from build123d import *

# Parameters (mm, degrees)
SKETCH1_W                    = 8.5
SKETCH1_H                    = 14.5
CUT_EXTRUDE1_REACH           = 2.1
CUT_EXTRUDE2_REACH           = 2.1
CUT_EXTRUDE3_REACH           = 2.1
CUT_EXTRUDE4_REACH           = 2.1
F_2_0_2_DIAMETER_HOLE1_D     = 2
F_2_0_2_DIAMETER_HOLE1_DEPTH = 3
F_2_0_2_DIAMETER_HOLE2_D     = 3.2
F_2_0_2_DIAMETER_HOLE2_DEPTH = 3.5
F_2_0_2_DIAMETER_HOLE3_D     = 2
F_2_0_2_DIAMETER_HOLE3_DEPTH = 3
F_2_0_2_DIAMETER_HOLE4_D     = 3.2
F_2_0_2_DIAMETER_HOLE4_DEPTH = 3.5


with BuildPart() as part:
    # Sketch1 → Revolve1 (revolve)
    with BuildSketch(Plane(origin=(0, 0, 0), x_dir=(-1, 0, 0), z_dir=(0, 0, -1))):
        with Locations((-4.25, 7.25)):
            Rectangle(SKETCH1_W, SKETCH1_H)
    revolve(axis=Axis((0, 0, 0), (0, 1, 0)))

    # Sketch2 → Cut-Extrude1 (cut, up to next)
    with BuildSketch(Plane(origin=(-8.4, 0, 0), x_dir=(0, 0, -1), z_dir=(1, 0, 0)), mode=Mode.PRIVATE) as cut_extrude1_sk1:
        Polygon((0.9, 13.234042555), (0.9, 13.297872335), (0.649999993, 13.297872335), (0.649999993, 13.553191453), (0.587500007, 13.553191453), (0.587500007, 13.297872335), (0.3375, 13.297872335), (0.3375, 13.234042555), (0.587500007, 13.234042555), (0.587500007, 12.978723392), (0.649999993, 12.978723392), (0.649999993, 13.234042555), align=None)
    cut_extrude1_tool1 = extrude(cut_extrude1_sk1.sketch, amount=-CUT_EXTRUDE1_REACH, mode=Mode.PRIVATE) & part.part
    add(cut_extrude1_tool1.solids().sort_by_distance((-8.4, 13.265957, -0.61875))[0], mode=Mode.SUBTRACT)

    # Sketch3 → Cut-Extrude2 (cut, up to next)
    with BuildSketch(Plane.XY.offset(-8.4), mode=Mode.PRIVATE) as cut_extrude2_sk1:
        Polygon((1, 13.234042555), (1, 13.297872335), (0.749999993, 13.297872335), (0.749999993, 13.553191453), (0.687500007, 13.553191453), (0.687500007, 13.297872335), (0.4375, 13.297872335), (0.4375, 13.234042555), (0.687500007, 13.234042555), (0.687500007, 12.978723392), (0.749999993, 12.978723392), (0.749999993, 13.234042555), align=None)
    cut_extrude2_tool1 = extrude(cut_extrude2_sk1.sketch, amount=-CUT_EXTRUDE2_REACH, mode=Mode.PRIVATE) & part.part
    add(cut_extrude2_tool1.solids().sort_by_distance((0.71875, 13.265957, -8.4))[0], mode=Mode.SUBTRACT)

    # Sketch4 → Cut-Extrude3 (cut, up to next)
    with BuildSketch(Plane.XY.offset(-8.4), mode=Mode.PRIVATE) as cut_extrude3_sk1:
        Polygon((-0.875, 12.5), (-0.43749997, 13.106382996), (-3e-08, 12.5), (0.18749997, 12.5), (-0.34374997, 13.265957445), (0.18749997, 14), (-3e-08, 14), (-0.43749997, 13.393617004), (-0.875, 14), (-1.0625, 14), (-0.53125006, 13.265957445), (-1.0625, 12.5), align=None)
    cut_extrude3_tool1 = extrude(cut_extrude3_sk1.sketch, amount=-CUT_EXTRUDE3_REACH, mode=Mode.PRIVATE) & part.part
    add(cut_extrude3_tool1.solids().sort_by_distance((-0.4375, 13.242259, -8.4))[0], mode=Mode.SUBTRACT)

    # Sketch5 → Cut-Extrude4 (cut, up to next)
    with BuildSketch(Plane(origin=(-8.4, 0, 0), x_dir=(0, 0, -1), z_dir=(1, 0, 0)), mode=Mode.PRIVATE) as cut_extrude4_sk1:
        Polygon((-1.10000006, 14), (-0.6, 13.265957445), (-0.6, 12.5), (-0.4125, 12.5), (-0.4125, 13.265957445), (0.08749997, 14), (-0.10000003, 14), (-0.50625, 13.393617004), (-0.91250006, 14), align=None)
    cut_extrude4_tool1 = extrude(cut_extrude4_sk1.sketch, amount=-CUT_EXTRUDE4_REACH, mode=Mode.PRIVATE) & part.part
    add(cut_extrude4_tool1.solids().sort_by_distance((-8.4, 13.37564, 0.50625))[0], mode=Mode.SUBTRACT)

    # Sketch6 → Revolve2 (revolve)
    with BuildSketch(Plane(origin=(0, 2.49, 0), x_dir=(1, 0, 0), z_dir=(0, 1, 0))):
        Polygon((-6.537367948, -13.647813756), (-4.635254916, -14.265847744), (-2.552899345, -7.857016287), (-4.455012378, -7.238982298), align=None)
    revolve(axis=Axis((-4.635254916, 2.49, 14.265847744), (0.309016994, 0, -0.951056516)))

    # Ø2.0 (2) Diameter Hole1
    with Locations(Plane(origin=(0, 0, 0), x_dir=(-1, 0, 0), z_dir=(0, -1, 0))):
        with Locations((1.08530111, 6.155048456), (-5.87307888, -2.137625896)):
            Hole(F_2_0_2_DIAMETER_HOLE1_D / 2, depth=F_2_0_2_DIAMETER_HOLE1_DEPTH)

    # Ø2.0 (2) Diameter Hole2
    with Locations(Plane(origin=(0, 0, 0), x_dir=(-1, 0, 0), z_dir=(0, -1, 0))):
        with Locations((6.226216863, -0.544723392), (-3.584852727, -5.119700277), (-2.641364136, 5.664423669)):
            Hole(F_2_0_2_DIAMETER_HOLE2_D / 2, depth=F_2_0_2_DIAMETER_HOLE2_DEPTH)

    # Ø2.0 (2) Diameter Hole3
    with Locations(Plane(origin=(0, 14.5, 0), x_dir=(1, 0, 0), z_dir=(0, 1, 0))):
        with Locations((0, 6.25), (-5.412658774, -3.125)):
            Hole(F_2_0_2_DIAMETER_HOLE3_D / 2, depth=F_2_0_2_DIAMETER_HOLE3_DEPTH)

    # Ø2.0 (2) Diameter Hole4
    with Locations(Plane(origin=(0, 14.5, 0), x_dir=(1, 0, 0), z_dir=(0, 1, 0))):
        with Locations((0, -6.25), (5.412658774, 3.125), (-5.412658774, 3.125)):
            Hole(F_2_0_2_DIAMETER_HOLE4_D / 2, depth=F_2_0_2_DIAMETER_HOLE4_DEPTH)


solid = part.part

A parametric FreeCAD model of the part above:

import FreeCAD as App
import Part
import Sketcher
from FreeCAD import Vector
Q = App.Units.Quantity


def add_polygon(sketch, points):
    """Adds a closed chain of lines whose ends are joined by coincident constraints."""
    first, n = sketch.GeometryCount, len(points)
    for a, b in zip(points, points[1:] + points[:1]):
        sketch.addGeometry(Part.LineSegment(App.Vector(*a, 0), App.Vector(*b, 0)), False)
    for i in range(n):
        sketch.addConstraint(Sketcher.Constraint("Coincident", first + i, 2, first + (i + 1) % n, 1))

doc = App.newDocument("Part")
params = doc.addObject("Spreadsheet::Sheet", "Params")
for row, (alias, value) in enumerate([
    ("sketch1_width", "8.5 mm"),
    ("sketch1_height", "14.5 mm"),
    ("revolution_angle", "360 deg"),
    ("sketch2_height", "0.25 mm"),
    ("sketch3_width", "0.25 mm"),
    ("sketch6_length", "2 mm"),
    ("revolution2_angle", "360 deg"),
    ("sketch7_diameter", "2 mm"),
    ("hole_diameter", "2 mm"),
    ("hole_depth", "3 mm"),
    ("sketch8_diameter", "3.2 mm"),
    ("hole2_diameter", "3.2 mm"),
    ("hole2_depth", "3.5 mm"),
    ("sketch9_diameter", "2 mm"),
    ("hole3_diameter", "2 mm"),
    ("hole3_depth", "3 mm"),
    ("sketch10_diameter", "3.2 mm"),
    ("hole4_diameter", "3.2 mm"),
    ("hole4_depth", "3.5 mm"),
], start=1):
    params.set(f"A{row}", alias)
    params.set(f"B{row}", "=" + value)
    params.setAlias(f"B{row}", alias)

body = doc.addObject("PartDesign::Body", "Body")

sketch1 = body.newObject("Sketcher::SketchObject", "Sketch")
sketch1.AttachmentSupport = (doc.getObject("XY_Plane"), [""])
sketch1.MapMode = "FlatFace"
add_polygon(sketch1, [(8, 14), (8, 0), (0, 0), (0, 14)])
sketch1.addConstraint([
    Sketcher.Constraint("Vertical", 0),
    Sketcher.Constraint("Horizontal", 1),
    Sketcher.Constraint("Vertical", 2),
    Sketcher.Constraint("Horizontal", 3),
    Sketcher.Constraint("Coincident", 1, 2, -1, 1),
    Sketcher.Constraint("DistanceX", 1, 2, 1, 1, Q("8.5 mm")),
    Sketcher.Constraint("DistanceY", 0, 2, 0, 1, Q("14.5 mm")),
])
sketch1.setExpression("Constraints[9]", "Params.sketch1_width")
sketch1.setExpression("Constraints[10]", "Params.sketch1_height")
revolution = body.newObject("PartDesign::Revolution", "Revolution")
revolution.Profile = sketch1
revolution.ReferenceAxis = (sketch1, ["V_Axis"])
revolution.setExpression("Angle", "Params.revolution_angle")

sketch2 = body.newObject("Sketcher::SketchObject", "Sketch001")
sketch2.AttachmentSupport = (doc.getObject("YZ_Plane"), [""])
sketch2.MapMode = "FlatFace"
sketch2.AttachmentOffset = App.Placement(Vector(0, 0, -8.4), App.Rotation())
add_polygon(sketch2, [(13.23, -0.9), (13.3, -0.9), (13.3, -0.65), (13.55, -0.65), (13.55, -0.59), (13.3, -0.59), (13.3, -0.34), (13.23, -0.34), (13.23, -0.59), (12.98, -0.59), (12.98, -0.65), (13.23, -0.65)])
sketch2.addConstraint([
    Sketcher.Constraint("Horizontal", 0),
    Sketcher.Constraint("Vertical", 1),
    Sketcher.Constraint("Horizontal", 2),
    Sketcher.Constraint("Vertical", 3),
    Sketcher.Constraint("Horizontal", 4),
    Sketcher.Constraint("Vertical", 5),
    Sketcher.Constraint("Horizontal", 6),
    Sketcher.Constraint("Vertical", 7),
    Sketcher.Constraint("Horizontal", 8),
    Sketcher.Constraint("Vertical", 9),
    Sketcher.Constraint("Horizontal", 10),
    Sketcher.Constraint("Vertical", 11),
    Sketcher.Constraint("Horizontal", 4, 2, 7, 2),
    Sketcher.Constraint("Horizontal", 2, 2, 9, 2),
    Sketcher.Constraint("Vertical", 1, 2, 4, 2),
    Sketcher.Constraint("Vertical", 7, 2, 10, 2),
    Sketcher.Constraint("Equal", 4, 8),
    Sketcher.Constraint("Equal", 1, 5),
    Sketcher.Constraint("DistanceY", 1, 1, 1, 2, Q("0.25 mm")),
    Sketcher.Constraint("DistanceY", 0, 2, -1, 1, Q("0.9 mm")),
    Sketcher.Constraint("DistanceY", 3, 1, 3, 2, Q("0.0625 mm")),
    Sketcher.Constraint("DistanceX", 0, 1, 0, 2, Q("0.06383 mm")),
    Sketcher.Constraint("DistanceX", 2, 1, 2, 2, Q("0.255319 mm")),
    Sketcher.Constraint("DistanceX", -1, 1, 2, 2, Q("13.553191 mm")),
])
sketch2.setExpression("Constraints[30]", "Params.sketch2_height")
pocket1 = body.newObject("PartDesign::Pocket", "Pocket")
pocket1.Profile = sketch2
pocket1.Type = "UpToFirst"

sketch3 = body.newObject("Sketcher::SketchObject", "Sketch002")
sketch3.AttachmentSupport = (doc.getObject("XY_Plane"), [""])
sketch3.MapMode = "FlatFace"
sketch3.AttachmentOffset = App.Placement(Vector(0, 0, -8.4), App.Rotation())
add_polygon(sketch3, [(1, 13.23), (1, 13.3), (0.75, 13.3), (0.75, 13.55), (0.69, 13.55), (0.69, 13.3), (0.44, 13.3), (0.44, 13.23), (0.69, 13.23), (0.69, 12.98), (0.75, 12.98), (0.75, 13.23)])
sketch3.addConstraint([
    Sketcher.Constraint("Vertical", 0),
    Sketcher.Constraint("Horizontal", 1),
    Sketcher.Constraint("Vertical", 2),
    Sketcher.Constraint("Horizontal", 3),
    Sketcher.Constraint("Vertical", 4),
    Sketcher.Constraint("Horizontal", 5),
    Sketcher.Constraint("Vertical", 6),
    Sketcher.Constraint("Horizontal", 7),
    Sketcher.Constraint("Vertical", 8),
    Sketcher.Constraint("Horizontal", 9),
    Sketcher.Constraint("Vertical", 10),
    Sketcher.Constraint("Horizontal", 11),
    Sketcher.Constraint("Horizontal", 1, 2, 4, 2),
    Sketcher.Constraint("Horizontal", 7, 2, 10, 2),
    Sketcher.Constraint("Vertical", 4, 2, 7, 2),
    Sketcher.Constraint("Vertical", 2, 2, 9, 2),
    Sketcher.Constraint("Equal", 1, 5),
    Sketcher.Constraint("Equal", 4, 8),
    Sketcher.Constraint("DistanceX", -1, 1, 0, 2, Q("1 mm")),
    Sketcher.Constraint("DistanceX", 1, 2, 1, 1, Q("0.25 mm")),
    Sketcher.Constraint("DistanceX", 3, 2, 3, 1, Q("0.0625 mm")),
    Sketcher.Constraint("DistanceY", 0, 1, 0, 2, Q("0.06383 mm")),
    Sketcher.Constraint("DistanceY", 2, 1, 2, 2, Q("0.255319 mm")),
    Sketcher.Constraint("DistanceY", -1, 1, 2, 2, Q("13.553191 mm")),
])
sketch3.setExpression("Constraints[31]", "Params.sketch3_width")
pocket2 = body.newObject("PartDesign::Pocket", "Pocket001")
pocket2.Profile = sketch3
pocket2.Type = "UpToFirst"

sketch4 = body.newObject("Sketcher::SketchObject", "Sketch003")
sketch4.AttachmentSupport = (doc.getObject("XY_Plane"), [""])
sketch4.MapMode = "FlatFace"
sketch4.AttachmentOffset = App.Placement(Vector(0, 0, -8.4), App.Rotation())
add_polygon(sketch4, [(-0.88, 12.5), (-0.44, 13.11), (0, 12.5), (0.19, 12.5), (-0.34, 13.27), (0.19, 14), (0, 14), (-0.44, 13.39), (-0.88, 14), (-1.06, 14), (-0.53, 13.27), (-1.06, 12.5)])
sketch4.addConstraint([
    Sketcher.Constraint("Horizontal", 2),
    Sketcher.Constraint("Horizontal", 5),
    Sketcher.Constraint("Horizontal", 8),
    Sketcher.Constraint("Horizontal", 11),
    Sketcher.Constraint("PointOnObject", 1, 2, -2),
    Sketcher.Constraint("PointOnObject", 5, 2, -2),
    Sketcher.Constraint("Parallel", 0, 6),
    Sketcher.Constraint("Parallel", 1, 7),
    Sketcher.Constraint("Horizontal", 5, 2, 7, 2),
    Sketcher.Constraint("Horizontal", 3, 2, 9, 2),
    Sketcher.Constraint("Horizontal", 2, 2, 10, 2),
    Sketcher.Constraint("Vertical", 2, 2, 4, 2),
    Sketcher.Constraint("Vertical", 0, 2, 6, 2),
    Sketcher.Constraint("Vertical", 8, 2, 10, 2),
    Sketcher.Constraint("Vertical", 7, 2, 11, 2),
    Sketcher.Constraint("Equal", 5, 8),
    Sketcher.Constraint("Equal", 4, 9),
    Sketcher.Constraint("DistanceY", -1, 1, 4, 2, Q("14 mm")),
    Sketcher.Constraint("DistanceY", -1, 1, 1, 2, Q("12.5 mm")),
    Sketcher.Constraint("DistanceX", 2, 1, 2, 2, Q("0.1875 mm")),
    Sketcher.Constraint("DistanceX", 7, 2, -1, 1, Q("0.875 mm")),
    Sketcher.Constraint("DistanceX", 9, 2, 3, 2, Q("0.1875 mm")),
    Sketcher.Constraint("DistanceY", 3, 2, 6, 2, Q("0.12766 mm")),
    Sketcher.Constraint("Distance", 0, Q("0.747734 mm")),
])
pocket3 = body.newObject("PartDesign::Pocket", "Pocket002")
pocket3.Profile = sketch4
pocket3.Type = "UpToFirst"

sketch5 = body.newObject("Sketcher::SketchObject", "Sketch004")
sketch5.AttachmentSupport = (doc.getObject("YZ_Plane"), [""])
sketch5.MapMode = "FlatFace"
sketch5.AttachmentOffset = App.Placement(Vector(0, 0, -8.4), App.Rotation())
add_polygon(sketch5, [(14, 1.1), (13.27, 0.6), (12.5, 0.6), (12.5, 0.41), (13.27, 0.41), (14, -0.09), (14, 0.1), (13.39, 0.51), (14, 0.91)])
sketch5.addConstraint([
    Sketcher.Constraint("Horizontal", 1),
    Sketcher.Constraint("Vertical", 2),
    Sketcher.Constraint("Horizontal", 3),
    Sketcher.Constraint("Vertical", 5),
    Sketcher.Constraint("Vertical", 8),
    Sketcher.Constraint("Vertical", 0, 2, 3, 2),
    Sketcher.Constraint("Vertical", 5, 2, 7, 2),
    Sketcher.Constraint("Equal", 2, 5),
    Sketcher.Constraint("Equal", 5, 8),
    Sketcher.Constraint("Equal", 0, 4),
    Sketcher.Constraint("Equal", 6, 7),
    Sketcher.Constraint("DistanceX", -1, 1, 4, 2, Q("14 mm")),
    Sketcher.Constraint("DistanceY", 4, 2, 7, 2, Q("1 mm")),
    Sketcher.Constraint("DistanceY", -1, 1, 0, 2, Q("0.6 mm")),
    Sketcher.Constraint("DistanceX", -1, 1, 1, 2, Q("12.5 mm")),
    Sketcher.Constraint("DistanceY", 2, 2, 2, 1, Q("0.1875 mm")),
    Sketcher.Constraint("Distance", 6, Q("0.72989 mm")),
    Sketcher.Constraint("DistanceX", 1, 2, 1, 1, Q("0.765957 mm")),
])
pocket4 = body.newObject("PartDesign::Pocket", "Pocket003")
pocket4.Profile = sketch5
pocket4.Type = "UpToFirst"

sketch6 = body.newObject("Sketcher::SketchObject", "Sketch005")
sketch6.AttachmentSupport = (doc.getObject("XZ_Plane"), [""])
sketch6.MapMode = "FlatFace"
sketch6.AttachmentOffset = App.Placement(Vector(0, 0, -2.49), App.Rotation())
add_polygon(sketch6, [(-6.5, 13.6), (-4.6, 14.3), (-2.6, 7.9), (-4.5, 7.2)])
sketch6.addGeometry(Part.LineSegment(Vector(-4.6, 14.3, 0), Vector(-2.6, 7.9, 0)), True)
sketch6.addConstraint([
    Sketcher.Constraint("Coincident", 4, 1, 0, 2),
    Sketcher.Constraint("Coincident", 4, 2, 1, 2),
    Sketcher.Constraint("Perpendicular", 0, 1),
    Sketcher.Constraint("Perpendicular", 1, 2),
    Sketcher.Constraint("Perpendicular", 2, 3),
    Sketcher.Constraint("Angle", 0, Q("18 deg")),
    Sketcher.Constraint("Distance", 0, Q("2 mm")),
    Sketcher.Constraint("DistanceX", 1, 2, -1, 1, Q("2.552899 mm")),
    Sketcher.Constraint("DistanceY", 1, 2, 0, 2, Q("6.408831 mm")),
    Sketcher.Constraint("DistanceY", -1, 1, 0, 2, Q("14.265848 mm")),
])
sketch6.setExpression("Constraints[10]", "Params.sketch6_length")
revolution2 = body.newObject("PartDesign::Revolution", "Revolution001")
revolution2.Profile = sketch6
revolution2.ReferenceAxis = (sketch6, ["Axis0"])
revolution2.setExpression("Angle", "Params.revolution2_angle")

sketch7 = body.newObject("Sketcher::SketchObject", "Sketch006")
sketch7.AttachmentSupport = (doc.getObject("XZ_Plane"), [""])
sketch7.MapMode = "FlatFace"
sketch7.addGeometry([
    Part.Circle(Vector(-1.1, -6.2, 0), Vector(0, 0, 1), 1),
    Part.Circle(Vector(5.9, 2.1, 0), Vector(0, 0, 1), 1),
], False)
sketch7.addConstraint([
    Sketcher.Constraint("Equal", 0, 1),
    Sketcher.Constraint("Diameter", 0, Q("2 mm")),
    Sketcher.Constraint("DistanceX", 0, 3, -1, 1, Q("1.085301 mm")),
    Sketcher.Constraint("DistanceY", 0, 3, -1, 1, Q("6.155048 mm")),
    Sketcher.Constraint("DistanceX", -1, 1, 1, 3, Q("5.873079 mm")),
    Sketcher.Constraint("DistanceY", -1, 1, 1, 3, Q("2.137626 mm")),
])
sketch7.setExpression("Constraints[1]", "Params.sketch7_diameter")
doc.recompute()
hole = body.newObject("PartDesign::Hole", "Hole")
hole.Profile = sketch7
hole.ThreadType = "None"
hole.setExpression("Diameter", "Params.hole_diameter")
hole.DepthType = "Dimension"
hole.setExpression("Depth", "Params.hole_depth")
hole.DrillPoint = "Flat"

sketch8 = body.newObject("Sketcher::SketchObject", "Sketch007")
sketch8.AttachmentSupport = (doc.getObject("XZ_Plane"), [""])
sketch8.MapMode = "FlatFace"
sketch8.addGeometry([
    Part.Circle(Vector(-6.2, 0.5, 0), Vector(0, 0, 1), 1.6),
    Part.Circle(Vector(3.6, 5.1, 0), Vector(0, 0, 1), 1.6),
    Part.Circle(Vector(2.6, -5.7, 0), Vector(0, 0, 1), 1.6),
], False)
sketch8.addConstraint([
    Sketcher.Constraint("Equal", 0, 1),
    Sketcher.Constraint("Equal", 1, 2),
    Sketcher.Constraint("Diameter", 0, Q("3.2 mm")),
    Sketcher.Constraint("DistanceY", -1, 1, 1, 3, Q("5.1197 mm")),
    Sketcher.Constraint("DistanceX", 0, 3, 1, 3, Q("9.81107 mm")),
    Sketcher.Constraint("DistanceX", 0, 3, 2, 3, Q("8.867581 mm")),
    Sketcher.Constraint("DistanceX", 0, 3, -1, 1, Q("6.226217 mm")),
    Sketcher.Constraint("DistanceY", -1, 1, 0, 3, Q("0.544723 mm")),
    Sketcher.Constraint("DistanceY", 2, 3, -1, 1, Q("5.664424 mm")),
])
sketch8.setExpression("Constraints[2]", "Params.sketch8_diameter")
doc.recompute()
hole2 = body.newObject("PartDesign::Hole", "Hole001")
hole2.Profile = sketch8
hole2.ThreadType = "None"
hole2.setExpression("Diameter", "Params.hole2_diameter")
hole2.DepthType = "Dimension"
hole2.setExpression("Depth", "Params.hole2_depth")
hole2.DrillPoint = "Flat"

sketch9 = body.newObject("Sketcher::SketchObject", "Sketch008")
sketch9.AttachmentSupport = (doc.getObject("XZ_Plane"), [""])
sketch9.MapMode = "FlatFace"
sketch9.AttachmentOffset = App.Placement(Vector(0, 0, -14.5), App.Rotation())
sketch9.addGeometry([
    Part.Circle(Vector(0, -6.2, 0), Vector(0, 0, 1), 1),
    Part.Circle(Vector(-5.4, 3.1, 0), Vector(0, 0, 1), 1),
], False)
sketch9.addConstraint([
    Sketcher.Constraint("Equal", 0, 1),
    Sketcher.Constraint("PointOnObject", 0, 3, -2),
    Sketcher.Constraint("Diameter", 0, Q("2 mm")),
    Sketcher.Constraint("DistanceY", 0, 3, -1, 1, Q("6.25 mm")),
    Sketcher.Constraint("DistanceY", -1, 1, 1, 3, Q("3.125 mm")),
    Sketcher.Constraint("DistanceX", 1, 3, -1, 1, Q("5.412659 mm")),
])
sketch9.setExpression("Constraints[2]", "Params.sketch9_diameter")
doc.recompute()
hole3 = body.newObject("PartDesign::Hole", "Hole002")
hole3.Profile = sketch9
hole3.ThreadType = "None"
hole3.setExpression("Diameter", "Params.hole3_diameter")
hole3.DepthType = "Dimension"
hole3.setExpression("Depth", "Params.hole3_depth")
hole3.DrillPoint = "Flat"
hole3.Reversed = True

sketch10 = body.newObject("Sketcher::SketchObject", "Sketch009")
sketch10.AttachmentSupport = (doc.getObject("XZ_Plane"), [""])
sketch10.MapMode = "FlatFace"
sketch10.AttachmentOffset = App.Placement(Vector(0, 0, -14.5), App.Rotation())
sketch10.addGeometry([
    Part.Circle(Vector(0, 6.2, 0), Vector(0, 0, 1), 1.6),
    Part.Circle(Vector(5.4, -3.1, 0), Vector(0, 0, 1), 1.6),
    Part.Circle(Vector(-5.4, -3.1, 0), Vector(0, 0, 1), 1.6),
], False)
sketch10.addConstraint([
    Sketcher.Constraint("Equal", 0, 1),
    Sketcher.Constraint("Equal", 1, 2),
    Sketcher.Constraint("Symmetric", 1, 3, 2, 3, -2),
    Sketcher.Constraint("PointOnObject", 0, 3, -2),
    Sketcher.Constraint("Diameter", 0, Q("3.2 mm")),
    Sketcher.Constraint("DistanceY", -1, 1, 0, 3, Q("6.25 mm")),
    Sketcher.Constraint("DistanceY", 1, 3, -1, 1, Q("3.125 mm")),
    Sketcher.Constraint("DistanceX", -1, 1, 1, 3, Q("5.412659 mm")),
])
sketch10.setExpression("Constraints[4]", "Params.sketch10_diameter")
doc.recompute()
hole4 = body.newObject("PartDesign::Hole", "Hole003")
hole4.Profile = sketch10
hole4.ThreadType = "None"
hole4.setExpression("Diameter", "Params.hole4_diameter")
hole4.DepthType = "Dimension"
hole4.setExpression("Depth", "Params.hole4_depth")
hole4.DrillPoint = "Flat"
hole4.Reversed = True

doc.recompute()
